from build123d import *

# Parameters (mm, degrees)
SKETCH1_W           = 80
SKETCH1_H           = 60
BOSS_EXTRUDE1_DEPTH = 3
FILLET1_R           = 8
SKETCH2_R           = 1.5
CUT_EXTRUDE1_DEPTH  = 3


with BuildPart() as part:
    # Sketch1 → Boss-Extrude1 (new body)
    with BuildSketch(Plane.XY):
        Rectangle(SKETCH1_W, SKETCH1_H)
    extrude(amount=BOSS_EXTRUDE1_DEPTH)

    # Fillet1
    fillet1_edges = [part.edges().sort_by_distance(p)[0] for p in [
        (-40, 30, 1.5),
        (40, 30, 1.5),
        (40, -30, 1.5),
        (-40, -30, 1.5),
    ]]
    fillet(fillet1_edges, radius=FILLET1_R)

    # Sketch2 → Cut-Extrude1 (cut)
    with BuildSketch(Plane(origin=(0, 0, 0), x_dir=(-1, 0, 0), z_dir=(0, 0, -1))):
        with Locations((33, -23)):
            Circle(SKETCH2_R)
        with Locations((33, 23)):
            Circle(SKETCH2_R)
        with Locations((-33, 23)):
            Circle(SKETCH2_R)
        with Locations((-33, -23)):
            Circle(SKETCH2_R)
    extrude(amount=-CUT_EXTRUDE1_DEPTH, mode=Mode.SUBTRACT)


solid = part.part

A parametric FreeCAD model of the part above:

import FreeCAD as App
import Part
import Sketcher

V = App.Vector
Q = App.Units.Quantity


def edges_at(feature, points):
    """Names of the edges that pass closest to the given points."""
    edges = feature.Shape.Edges
    near = lambda p: min(range(len(edges)), key=lambda i: edges[i].distToShape(Part.Vertex(*p))[0])
    return sorted({f"Edge{near(p) + 1}" for p in points})


def add_polygon(sketch, points):
    """Adds a closed chain of lines whose ends are joined by coincident constraints."""
    first, n = sketch.GeometryCount, len(points)
    for a, b in zip(points, points[1:] + points[:1]):
        sketch.addGeometry(Part.LineSegment(App.Vector(*a, 0), App.Vector(*b, 0)), False)
    for i in range(n):
        sketch.addConstraint(Sketcher.Constraint("Coincident", first + i, 2, first + (i + 1) % n, 1))

doc = App.newDocument("Part")
body = doc.addObject("PartDesign::Body", "Body")

sketch1 = body.newObject("Sketcher::SketchObject", "Sketch")
sketch1.AttachmentSupport = (doc.getObject("XY_Plane"), [""])
sketch1.MapMode = "FlatFace"
add_polygon(sketch1, [(-40, 30), (-40, -30), (40, -30), (40, 30)])
sketch1.addConstraint([
    Sketcher.Constraint("Vertical", 0),
    Sketcher.Constraint("Horizontal", 1),
    Sketcher.Constraint("Vertical", 2),
    Sketcher.Constraint("Horizontal", 3),
    Sketcher.Constraint("Symmetric", 0, 2, 2, 2, -1, 1),
    Sketcher.Constraint("DistanceX", 1, 1, 1, 2, Q("80 mm")),
    Sketcher.Constraint("DistanceY", 0, 2, 0, 1, Q("60 mm")),
])
pad1 = body.newObject("PartDesign::Pad", "Pad")
pad1.Profile = sketch1
pad1.Length = 3
doc.recompute()

fillet = body.newObject("PartDesign::Fillet", "Fillet")
fillet.Base = (pad1, edges_at(pad1, [
    (-40, 30, 1.5),
    (40, 30, 1.5),
    (40, -30, 1.5),
    (-40, -30, 1.5),
]))
fillet.Radius = 8

sketch2 = body.newObject("Sketcher::SketchObject", "Sketch001")
sketch2.AttachmentSupport = (doc.getObject("XY_Plane"), [""])
sketch2.MapMode = "FlatFace"
sketch2.addGeometry([
    Part.Circle(V(-33, -23, 0), V(0, 0, 1), 1.5),
    Part.Circle(V(-33, 23, 0), V(0, 0, 1), 1.5),
    Part.Circle(V(33, 23, 0), V(0, 0, 1), 1.5),
    Part.Circle(V(33, -23, 0), V(0, 0, 1), 1.5),
], False)
sketch2.addConstraint([
    Sketcher.Constraint("Equal", 0, 1),
    Sketcher.Constraint("Equal", 1, 2),
    Sketcher.Constraint("Equal", 2, 3),
    Sketcher.Constraint("Symmetric", 0, 3, 2, 3, -1, 1),
    Sketcher.Constraint("Symmetric", 1, 3, 3, 3, -1, 1),
    Sketcher.Constraint("Symmetric", 1, 3, 2, 3, -2),
    Sketcher.Constraint("Diameter", 0, Q("3 mm")),
    Sketcher.Constraint("DistanceX", 0, 3, -1, 1, Q("33 mm")),
    Sketcher.Constraint("DistanceY", 0, 3, -1, 1, Q("23 mm")),
])
pocket1 = body.newObject("PartDesign::Pocket", "Pocket")
pocket1.Profile = sketch2
pocket1.Length = 3
pocket1.Reversed = True

doc.recompute()
